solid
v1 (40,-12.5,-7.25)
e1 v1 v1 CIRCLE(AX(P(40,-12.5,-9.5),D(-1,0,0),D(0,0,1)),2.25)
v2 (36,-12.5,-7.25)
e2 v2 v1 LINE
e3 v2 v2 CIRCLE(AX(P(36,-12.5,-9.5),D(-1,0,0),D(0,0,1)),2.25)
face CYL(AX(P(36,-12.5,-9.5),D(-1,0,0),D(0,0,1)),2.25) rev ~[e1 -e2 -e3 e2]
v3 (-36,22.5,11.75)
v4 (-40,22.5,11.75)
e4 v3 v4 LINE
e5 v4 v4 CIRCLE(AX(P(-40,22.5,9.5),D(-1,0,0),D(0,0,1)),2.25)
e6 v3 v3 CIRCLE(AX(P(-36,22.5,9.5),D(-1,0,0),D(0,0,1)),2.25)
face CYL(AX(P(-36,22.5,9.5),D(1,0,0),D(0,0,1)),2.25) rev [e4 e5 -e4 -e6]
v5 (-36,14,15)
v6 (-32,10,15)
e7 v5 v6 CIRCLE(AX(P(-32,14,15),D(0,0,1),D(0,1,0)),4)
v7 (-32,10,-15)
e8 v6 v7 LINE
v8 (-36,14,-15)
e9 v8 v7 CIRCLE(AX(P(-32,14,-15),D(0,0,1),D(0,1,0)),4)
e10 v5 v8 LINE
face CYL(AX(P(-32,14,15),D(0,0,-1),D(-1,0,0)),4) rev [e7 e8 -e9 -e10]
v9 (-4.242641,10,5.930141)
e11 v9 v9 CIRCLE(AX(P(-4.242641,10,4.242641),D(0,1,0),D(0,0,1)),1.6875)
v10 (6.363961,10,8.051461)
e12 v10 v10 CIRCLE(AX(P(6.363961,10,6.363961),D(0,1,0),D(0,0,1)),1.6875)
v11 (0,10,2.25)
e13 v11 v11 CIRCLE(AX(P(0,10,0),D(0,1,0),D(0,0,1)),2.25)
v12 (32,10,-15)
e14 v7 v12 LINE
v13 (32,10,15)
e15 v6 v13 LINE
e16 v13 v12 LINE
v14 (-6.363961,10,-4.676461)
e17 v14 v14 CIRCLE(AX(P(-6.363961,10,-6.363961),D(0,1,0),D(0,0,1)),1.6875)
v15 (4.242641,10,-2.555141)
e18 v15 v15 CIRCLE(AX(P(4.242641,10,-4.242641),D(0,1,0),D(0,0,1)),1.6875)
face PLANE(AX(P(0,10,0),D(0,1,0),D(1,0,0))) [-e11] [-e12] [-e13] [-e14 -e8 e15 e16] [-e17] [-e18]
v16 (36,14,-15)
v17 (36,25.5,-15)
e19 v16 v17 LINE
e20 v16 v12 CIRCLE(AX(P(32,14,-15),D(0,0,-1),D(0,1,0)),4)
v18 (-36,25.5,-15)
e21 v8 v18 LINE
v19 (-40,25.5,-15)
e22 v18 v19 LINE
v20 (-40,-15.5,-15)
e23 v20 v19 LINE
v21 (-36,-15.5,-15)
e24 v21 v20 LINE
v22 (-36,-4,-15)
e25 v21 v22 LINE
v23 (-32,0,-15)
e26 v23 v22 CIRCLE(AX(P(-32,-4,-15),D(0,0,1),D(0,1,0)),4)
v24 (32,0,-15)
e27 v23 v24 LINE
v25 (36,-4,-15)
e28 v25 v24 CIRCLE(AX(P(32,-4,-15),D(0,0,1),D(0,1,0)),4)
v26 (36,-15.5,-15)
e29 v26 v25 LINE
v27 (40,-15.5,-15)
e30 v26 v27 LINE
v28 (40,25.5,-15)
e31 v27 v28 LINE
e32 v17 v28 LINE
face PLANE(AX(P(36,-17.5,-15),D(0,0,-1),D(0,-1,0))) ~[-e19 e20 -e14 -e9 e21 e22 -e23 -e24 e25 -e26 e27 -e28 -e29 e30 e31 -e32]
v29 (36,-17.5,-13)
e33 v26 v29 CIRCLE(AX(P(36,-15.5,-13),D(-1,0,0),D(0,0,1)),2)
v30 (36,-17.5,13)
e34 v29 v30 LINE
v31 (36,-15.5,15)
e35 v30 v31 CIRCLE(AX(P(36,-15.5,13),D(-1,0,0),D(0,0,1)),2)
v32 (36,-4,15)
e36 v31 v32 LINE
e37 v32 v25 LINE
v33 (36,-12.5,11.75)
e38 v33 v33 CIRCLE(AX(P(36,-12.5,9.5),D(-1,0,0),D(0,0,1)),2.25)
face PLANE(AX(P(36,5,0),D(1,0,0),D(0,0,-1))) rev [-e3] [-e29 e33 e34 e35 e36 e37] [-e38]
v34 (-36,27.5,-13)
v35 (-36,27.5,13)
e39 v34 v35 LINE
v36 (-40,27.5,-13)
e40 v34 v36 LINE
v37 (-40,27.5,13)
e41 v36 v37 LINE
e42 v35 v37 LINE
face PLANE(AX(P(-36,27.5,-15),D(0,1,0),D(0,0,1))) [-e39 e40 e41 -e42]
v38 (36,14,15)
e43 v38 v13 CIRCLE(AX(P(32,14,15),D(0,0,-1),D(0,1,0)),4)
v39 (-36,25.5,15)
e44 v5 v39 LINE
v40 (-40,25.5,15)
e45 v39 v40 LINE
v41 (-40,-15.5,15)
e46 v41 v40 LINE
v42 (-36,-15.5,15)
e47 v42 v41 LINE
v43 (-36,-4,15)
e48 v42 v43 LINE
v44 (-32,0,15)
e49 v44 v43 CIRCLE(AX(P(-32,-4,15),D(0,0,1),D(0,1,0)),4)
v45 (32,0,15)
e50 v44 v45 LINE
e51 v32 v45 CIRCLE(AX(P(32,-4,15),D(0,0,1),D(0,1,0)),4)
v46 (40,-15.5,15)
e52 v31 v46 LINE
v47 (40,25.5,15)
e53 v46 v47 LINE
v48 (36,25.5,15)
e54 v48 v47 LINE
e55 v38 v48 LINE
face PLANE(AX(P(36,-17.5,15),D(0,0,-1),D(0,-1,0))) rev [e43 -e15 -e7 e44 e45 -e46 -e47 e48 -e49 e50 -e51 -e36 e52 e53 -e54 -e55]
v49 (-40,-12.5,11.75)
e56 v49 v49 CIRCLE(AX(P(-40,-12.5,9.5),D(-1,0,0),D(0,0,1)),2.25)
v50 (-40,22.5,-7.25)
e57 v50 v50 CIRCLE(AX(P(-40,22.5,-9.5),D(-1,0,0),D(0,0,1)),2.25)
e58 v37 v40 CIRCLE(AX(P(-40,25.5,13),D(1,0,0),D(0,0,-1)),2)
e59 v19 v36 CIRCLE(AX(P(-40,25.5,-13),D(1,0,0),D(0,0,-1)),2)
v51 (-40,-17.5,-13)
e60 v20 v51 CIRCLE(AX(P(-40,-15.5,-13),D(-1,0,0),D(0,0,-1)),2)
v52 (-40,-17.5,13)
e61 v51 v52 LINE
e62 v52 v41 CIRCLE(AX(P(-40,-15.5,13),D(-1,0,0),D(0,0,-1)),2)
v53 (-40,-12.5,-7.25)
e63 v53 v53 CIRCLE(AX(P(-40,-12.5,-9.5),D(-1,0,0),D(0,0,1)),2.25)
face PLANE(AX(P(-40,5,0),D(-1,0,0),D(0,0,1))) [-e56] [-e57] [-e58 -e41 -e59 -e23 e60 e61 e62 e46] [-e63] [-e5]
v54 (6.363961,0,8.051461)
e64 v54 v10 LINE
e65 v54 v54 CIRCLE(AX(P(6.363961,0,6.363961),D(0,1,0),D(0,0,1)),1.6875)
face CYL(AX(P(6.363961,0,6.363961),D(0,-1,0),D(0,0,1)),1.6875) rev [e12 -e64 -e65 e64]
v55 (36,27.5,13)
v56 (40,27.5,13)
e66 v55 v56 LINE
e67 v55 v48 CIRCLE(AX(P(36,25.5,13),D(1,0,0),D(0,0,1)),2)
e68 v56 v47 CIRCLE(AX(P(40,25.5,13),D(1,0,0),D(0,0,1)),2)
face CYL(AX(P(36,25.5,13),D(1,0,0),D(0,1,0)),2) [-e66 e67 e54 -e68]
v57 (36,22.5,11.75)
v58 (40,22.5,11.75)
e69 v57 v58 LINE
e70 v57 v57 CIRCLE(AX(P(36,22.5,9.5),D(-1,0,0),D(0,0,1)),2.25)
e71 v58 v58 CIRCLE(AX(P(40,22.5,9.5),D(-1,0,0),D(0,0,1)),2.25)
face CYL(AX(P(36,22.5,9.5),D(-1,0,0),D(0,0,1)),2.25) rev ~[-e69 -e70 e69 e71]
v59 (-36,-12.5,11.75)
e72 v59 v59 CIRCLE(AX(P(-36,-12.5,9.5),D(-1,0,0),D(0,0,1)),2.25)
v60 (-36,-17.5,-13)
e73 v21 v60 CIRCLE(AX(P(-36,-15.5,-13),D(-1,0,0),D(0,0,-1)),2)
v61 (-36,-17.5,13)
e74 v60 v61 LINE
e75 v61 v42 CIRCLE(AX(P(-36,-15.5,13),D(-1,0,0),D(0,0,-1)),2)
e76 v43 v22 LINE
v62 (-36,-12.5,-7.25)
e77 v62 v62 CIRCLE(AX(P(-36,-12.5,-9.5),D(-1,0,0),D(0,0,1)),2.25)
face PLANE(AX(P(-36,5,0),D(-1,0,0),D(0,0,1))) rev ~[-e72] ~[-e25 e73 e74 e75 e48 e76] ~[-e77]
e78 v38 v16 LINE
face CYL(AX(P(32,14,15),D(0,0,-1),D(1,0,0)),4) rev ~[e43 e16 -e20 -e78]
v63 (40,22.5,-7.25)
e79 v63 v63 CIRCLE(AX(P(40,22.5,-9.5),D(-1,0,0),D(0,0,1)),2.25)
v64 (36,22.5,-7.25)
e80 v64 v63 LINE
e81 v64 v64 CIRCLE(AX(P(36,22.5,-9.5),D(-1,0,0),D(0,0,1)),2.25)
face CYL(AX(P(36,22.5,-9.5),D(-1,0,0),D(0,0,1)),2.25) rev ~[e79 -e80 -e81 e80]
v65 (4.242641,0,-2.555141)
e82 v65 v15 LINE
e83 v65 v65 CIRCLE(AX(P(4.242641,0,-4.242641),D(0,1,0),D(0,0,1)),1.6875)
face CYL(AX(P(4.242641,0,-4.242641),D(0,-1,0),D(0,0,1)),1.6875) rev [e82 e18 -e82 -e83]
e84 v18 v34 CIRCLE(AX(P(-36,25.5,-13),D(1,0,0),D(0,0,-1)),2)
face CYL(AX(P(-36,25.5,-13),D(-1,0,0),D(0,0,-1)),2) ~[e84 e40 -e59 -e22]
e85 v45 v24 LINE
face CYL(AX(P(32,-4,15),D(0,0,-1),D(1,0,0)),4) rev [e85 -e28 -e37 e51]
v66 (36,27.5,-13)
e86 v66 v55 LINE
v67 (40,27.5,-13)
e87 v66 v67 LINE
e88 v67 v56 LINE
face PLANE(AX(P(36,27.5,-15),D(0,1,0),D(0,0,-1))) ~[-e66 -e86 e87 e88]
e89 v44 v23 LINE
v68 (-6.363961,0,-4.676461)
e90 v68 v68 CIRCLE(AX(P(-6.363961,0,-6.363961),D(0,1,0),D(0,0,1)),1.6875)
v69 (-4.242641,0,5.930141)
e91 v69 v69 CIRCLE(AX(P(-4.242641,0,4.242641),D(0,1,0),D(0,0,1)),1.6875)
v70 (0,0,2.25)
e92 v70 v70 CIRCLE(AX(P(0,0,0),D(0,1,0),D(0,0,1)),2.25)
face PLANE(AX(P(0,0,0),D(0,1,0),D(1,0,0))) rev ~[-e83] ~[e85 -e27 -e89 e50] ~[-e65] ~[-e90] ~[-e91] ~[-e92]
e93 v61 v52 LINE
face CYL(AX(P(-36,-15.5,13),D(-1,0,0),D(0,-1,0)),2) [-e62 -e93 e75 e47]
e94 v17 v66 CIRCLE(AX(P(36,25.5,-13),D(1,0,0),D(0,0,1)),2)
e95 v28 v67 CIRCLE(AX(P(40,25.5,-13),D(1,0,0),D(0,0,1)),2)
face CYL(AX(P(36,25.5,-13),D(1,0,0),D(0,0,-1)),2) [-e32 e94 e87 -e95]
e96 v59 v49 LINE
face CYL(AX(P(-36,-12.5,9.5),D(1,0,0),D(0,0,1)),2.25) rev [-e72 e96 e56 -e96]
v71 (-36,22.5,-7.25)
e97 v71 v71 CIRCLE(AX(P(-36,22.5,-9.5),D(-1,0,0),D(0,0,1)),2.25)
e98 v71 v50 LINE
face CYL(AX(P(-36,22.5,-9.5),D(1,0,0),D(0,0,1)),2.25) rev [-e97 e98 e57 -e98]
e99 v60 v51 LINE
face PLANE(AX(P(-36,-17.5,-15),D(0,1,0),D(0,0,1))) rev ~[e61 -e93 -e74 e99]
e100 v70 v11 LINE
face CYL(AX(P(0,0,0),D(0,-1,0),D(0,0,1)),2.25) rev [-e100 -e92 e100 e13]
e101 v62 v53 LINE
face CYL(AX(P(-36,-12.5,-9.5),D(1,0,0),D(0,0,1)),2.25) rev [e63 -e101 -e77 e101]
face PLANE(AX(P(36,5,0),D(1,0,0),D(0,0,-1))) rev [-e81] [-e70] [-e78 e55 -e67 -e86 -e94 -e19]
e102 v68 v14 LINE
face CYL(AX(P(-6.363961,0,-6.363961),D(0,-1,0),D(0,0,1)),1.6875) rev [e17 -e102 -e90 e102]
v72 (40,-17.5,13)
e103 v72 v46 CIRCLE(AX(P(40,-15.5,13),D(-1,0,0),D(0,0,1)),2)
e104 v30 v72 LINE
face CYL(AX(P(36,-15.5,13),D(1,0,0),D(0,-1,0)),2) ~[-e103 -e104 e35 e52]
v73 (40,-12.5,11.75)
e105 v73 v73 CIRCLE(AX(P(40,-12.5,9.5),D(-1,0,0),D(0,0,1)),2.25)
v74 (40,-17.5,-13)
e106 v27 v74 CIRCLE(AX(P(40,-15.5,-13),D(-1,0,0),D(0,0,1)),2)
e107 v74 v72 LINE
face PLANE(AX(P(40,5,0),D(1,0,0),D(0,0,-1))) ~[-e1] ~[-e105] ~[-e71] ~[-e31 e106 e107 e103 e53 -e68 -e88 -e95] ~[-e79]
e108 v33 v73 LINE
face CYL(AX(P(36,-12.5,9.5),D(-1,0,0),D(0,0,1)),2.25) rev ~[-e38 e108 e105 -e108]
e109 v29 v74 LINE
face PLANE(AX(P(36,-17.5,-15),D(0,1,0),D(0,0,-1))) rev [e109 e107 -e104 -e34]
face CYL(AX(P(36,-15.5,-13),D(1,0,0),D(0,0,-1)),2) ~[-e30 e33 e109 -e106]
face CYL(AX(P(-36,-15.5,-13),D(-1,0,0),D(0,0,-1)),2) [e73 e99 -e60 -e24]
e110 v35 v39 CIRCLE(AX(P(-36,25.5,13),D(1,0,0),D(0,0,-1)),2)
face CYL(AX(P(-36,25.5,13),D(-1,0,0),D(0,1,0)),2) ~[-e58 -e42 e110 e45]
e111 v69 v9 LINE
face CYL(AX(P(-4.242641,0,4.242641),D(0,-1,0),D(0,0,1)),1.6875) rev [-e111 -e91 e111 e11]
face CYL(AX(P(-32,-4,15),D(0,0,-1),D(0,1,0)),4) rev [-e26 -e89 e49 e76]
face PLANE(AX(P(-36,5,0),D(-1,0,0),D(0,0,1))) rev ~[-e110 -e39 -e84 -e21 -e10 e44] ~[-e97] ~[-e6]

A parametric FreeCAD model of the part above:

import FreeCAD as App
import Part
import Sketcher

V = App.Vector
Q = App.Units.Quantity


def edges_at(feature, points):
    """Names of the edges that pass closest to the given points."""
    edges = feature.Shape.Edges
    near = lambda p: min(range(len(edges)), key=lambda i: edges[i].distToShape(Part.Vertex(*p))[0])
    return sorted({f"Edge{near(p) + 1}" for p in points})


def add_polygon(sketch, points):
    """Adds a closed chain of lines whose ends are joined by coincident constraints."""
    first, n = sketch.GeometryCount, len(points)
    for a, b in zip(points, points[1:] + points[:1]):
        sketch.addGeometry(Part.LineSegment(App.Vector(*a, 0), App.Vector(*b, 0)), False)
    for i in range(n):
        sketch.addConstraint(Sketcher.Constraint("Coincident", first + i, 2, first + (i + 1) % n, 1))

doc = App.newDocument("Part")
body = doc.addObject("PartDesign::Body", "Body")

# Sketch on XZ plane
sketch1 = doc.addObject("Sketcher::SketchObject", "Sketch")
body.addObject(sketch1)
sketch1.AttachmentSupport = (doc.XZ_Plane, [""])
sketch1.MapMode = "FlatFace"
add_polygon(sketch1, [(-36, -15), (-36, 15), (36, 15), (36, -15)])  # lines 0-3
sketch1.addGeometry(Part.Circle(V(-4.2, 4.2, 0), V(0, 0, 1), 1.7), False)  # 4
sketch1.addGeometry(Part.Circle(V(6.4, 6.4, 0), V(0, 0, 1), 1.7), False)  # 5
sketch1.addGeometry(Part.Circle(V(-6.4, -6.4, 0), V(0, 0, 1), 1.7), False)  # 6
sketch1.addGeometry(Part.Circle(V(0, 0, 0), V(0, 0, 1), 2.2), False)  # 7
sketch1.addGeometry(Part.Circle(V(4.2, -4.2, 0), V(0, 0, 1), 1.7), False)  # 8
sketch1.addConstraint([
    Sketcher.Constraint("Vertical", 0),
    Sketcher.Constraint("Horizontal", 1),
    Sketcher.Constraint("Vertical", 2),
    Sketcher.Constraint("Horizontal", 3),
    Sketcher.Constraint("Coincident", 7, 3, -1, 1),
    Sketcher.Constraint("Equal", 4, 5),
    Sketcher.Constraint("Equal", 5, 6),
    Sketcher.Constraint("Equal", 6, 8),
    Sketcher.Constraint("Symmetric", 5, 3, 6, 3, -1, 1),
    Sketcher.Constraint("Symmetric", 4, 3, 8, 3, -1, 1),
    Sketcher.Constraint("Symmetric", 0, 2, 2, 2, -1, 1),
    Sketcher.Constraint("Diameter", 7, Q("4.5 mm")),
    Sketcher.Constraint("DistanceX", 1, 1, 1, 2, Q("72 mm")),
    Sketcher.Constraint("DistanceY", 0, 1, 0, 2, Q("30 mm")),
    Sketcher.Constraint("Diameter", 4, Q("3.375 mm")),
    Sketcher.Constraint("DistanceX", 4, 3, 5, 3, Q("10.606602 mm")),
    Sketcher.Constraint("DistanceY", 6, 3, 4, 3, Q("10.606602 mm")),
    Sketcher.Constraint("DistanceX", 4, 3, -1, 1, Q("4.242641 mm")),
    Sketcher.Constraint("DistanceY", -1, 1, 4, 3, Q("4.242641 mm")),
])
pad1 = doc.addObject("PartDesign::Pad", "Pad")
body.addObject(pad1)
pad1.Profile = sketch1
pad1.Length = 10
pad1.Reversed = True

# Sketch on YZ plane
sketch2 = doc.addObject("Sketcher::SketchObject", "Sketch001")
body.addObject(sketch2)
sketch2.AttachmentSupport = (doc.YZ_Plane, [""])
sketch2.MapMode = "FlatFace"
sketch2.AttachmentOffset = App.Placement(V(0, 0, -36), App.Rotation())
add_polygon(sketch2, [(27.5, -15), (-17.5, -15), (-17.5, 15), (27.5, 15)])  # lines 0-3
sketch2.addGeometry(Part.Circle(V(-12.5, -9.5, 0), V(0, 0, 1), 2.2), False)  # 4
sketch2.addGeometry(Part.Circle(V(-12.5, 9.5, 0), V(0, 0, 1), 2.2), False)  # 5
sketch2.addGeometry(Part.Circle(V(22.5, -9.5, 0), V(0, 0, 1), 2.2), False)  # 6
sketch2.addGeometry(Part.Circle(V(22.5, 9.5, 0), V(0, 0, 1), 2.2), False)  # 7
sketch2.addConstraint([
    Sketcher.Constraint("Horizontal", 0),
    Sketcher.Constraint("Vertical", 1),
    Sketcher.Constraint("Horizontal", 2),
    Sketcher.Constraint("Vertical", 3),
    Sketcher.Constraint("Equal", 4, 5),
    Sketcher.Constraint("Equal", 5, 6),
    Sketcher.Constraint("Equal", 6, 7),
    Sketcher.Constraint("Symmetric", 4, 3, 5, 3, -1),
    Sketcher.Constraint("Symmetric", 6, 3, 7, 3, -1),
    Sketcher.Constraint("Horizontal", 4, 3, 6, 3),
    Sketcher.Constraint("Diameter", 4, Q("4.5 mm")),
    Sketcher.Constraint("DistanceX", 0, 2, 0, 1, Q("45 mm")),
    Sketcher.Constraint("DistanceY", 1, 1, 1, 2, Q("30 mm")),
    Sketcher.Constraint("DistanceY", 0, 2, -1, 1, Q("15 mm")),
    Sketcher.Constraint("DistanceY", 4, 3, 5, 3, Q("19 mm")),
    Sketcher.Constraint("DistanceX", 4, 3, 6, 3, Q("35 mm")),
    Sketcher.Constraint("DistanceX", 0, 2, 4, 3, Q("5 mm")),
    Sketcher.Constraint("DistanceX", 4, 3, -1, 1, Q("12.5 mm")),
])
pad2 = doc.addObject("PartDesign::Pad", "Pad001")
body.addObject(pad2)
pad2.Profile = sketch2
pad2.Length = 4
pad2.Reversed = True
doc.recompute()

mirrored = doc.addObject("PartDesign::Mirrored", "Mirrored")
body.addObject(mirrored)
mirrored.Originals = [pad2]
mirrored.MirrorPlane = (doc.YZ_Plane, [""])
body.Tip = mirrored
doc.recompute()

fillet = doc.addObject("PartDesign::Fillet", "Fillet")
body.addObject(fillet)
fillet.Base = (mirrored, edges_at(mirrored, [
    (-36, 10, 0),
    (-36, 0, 0),
    (36, 0, 0),
    (36, 10, 0),
]))
fillet.Radius = 4
doc.recompute()

fillet2 = doc.addObject("PartDesign::Fillet", "Fillet001")
body.addObject(fillet2)
fillet2.Base = (fillet, edges_at(fillet, [
    (-38, 27.5, 15),
    (-38, 27.5, -15),
    (-38, -17.5, -15),
    (-38, -17.5, 15),
    (38, 27.5, -15),
    (38, 27.5, 15),
    (38, -17.5, 15),
    (38, -17.5, -15),
]))
fillet2.Radius = 2

doc.recompute()
